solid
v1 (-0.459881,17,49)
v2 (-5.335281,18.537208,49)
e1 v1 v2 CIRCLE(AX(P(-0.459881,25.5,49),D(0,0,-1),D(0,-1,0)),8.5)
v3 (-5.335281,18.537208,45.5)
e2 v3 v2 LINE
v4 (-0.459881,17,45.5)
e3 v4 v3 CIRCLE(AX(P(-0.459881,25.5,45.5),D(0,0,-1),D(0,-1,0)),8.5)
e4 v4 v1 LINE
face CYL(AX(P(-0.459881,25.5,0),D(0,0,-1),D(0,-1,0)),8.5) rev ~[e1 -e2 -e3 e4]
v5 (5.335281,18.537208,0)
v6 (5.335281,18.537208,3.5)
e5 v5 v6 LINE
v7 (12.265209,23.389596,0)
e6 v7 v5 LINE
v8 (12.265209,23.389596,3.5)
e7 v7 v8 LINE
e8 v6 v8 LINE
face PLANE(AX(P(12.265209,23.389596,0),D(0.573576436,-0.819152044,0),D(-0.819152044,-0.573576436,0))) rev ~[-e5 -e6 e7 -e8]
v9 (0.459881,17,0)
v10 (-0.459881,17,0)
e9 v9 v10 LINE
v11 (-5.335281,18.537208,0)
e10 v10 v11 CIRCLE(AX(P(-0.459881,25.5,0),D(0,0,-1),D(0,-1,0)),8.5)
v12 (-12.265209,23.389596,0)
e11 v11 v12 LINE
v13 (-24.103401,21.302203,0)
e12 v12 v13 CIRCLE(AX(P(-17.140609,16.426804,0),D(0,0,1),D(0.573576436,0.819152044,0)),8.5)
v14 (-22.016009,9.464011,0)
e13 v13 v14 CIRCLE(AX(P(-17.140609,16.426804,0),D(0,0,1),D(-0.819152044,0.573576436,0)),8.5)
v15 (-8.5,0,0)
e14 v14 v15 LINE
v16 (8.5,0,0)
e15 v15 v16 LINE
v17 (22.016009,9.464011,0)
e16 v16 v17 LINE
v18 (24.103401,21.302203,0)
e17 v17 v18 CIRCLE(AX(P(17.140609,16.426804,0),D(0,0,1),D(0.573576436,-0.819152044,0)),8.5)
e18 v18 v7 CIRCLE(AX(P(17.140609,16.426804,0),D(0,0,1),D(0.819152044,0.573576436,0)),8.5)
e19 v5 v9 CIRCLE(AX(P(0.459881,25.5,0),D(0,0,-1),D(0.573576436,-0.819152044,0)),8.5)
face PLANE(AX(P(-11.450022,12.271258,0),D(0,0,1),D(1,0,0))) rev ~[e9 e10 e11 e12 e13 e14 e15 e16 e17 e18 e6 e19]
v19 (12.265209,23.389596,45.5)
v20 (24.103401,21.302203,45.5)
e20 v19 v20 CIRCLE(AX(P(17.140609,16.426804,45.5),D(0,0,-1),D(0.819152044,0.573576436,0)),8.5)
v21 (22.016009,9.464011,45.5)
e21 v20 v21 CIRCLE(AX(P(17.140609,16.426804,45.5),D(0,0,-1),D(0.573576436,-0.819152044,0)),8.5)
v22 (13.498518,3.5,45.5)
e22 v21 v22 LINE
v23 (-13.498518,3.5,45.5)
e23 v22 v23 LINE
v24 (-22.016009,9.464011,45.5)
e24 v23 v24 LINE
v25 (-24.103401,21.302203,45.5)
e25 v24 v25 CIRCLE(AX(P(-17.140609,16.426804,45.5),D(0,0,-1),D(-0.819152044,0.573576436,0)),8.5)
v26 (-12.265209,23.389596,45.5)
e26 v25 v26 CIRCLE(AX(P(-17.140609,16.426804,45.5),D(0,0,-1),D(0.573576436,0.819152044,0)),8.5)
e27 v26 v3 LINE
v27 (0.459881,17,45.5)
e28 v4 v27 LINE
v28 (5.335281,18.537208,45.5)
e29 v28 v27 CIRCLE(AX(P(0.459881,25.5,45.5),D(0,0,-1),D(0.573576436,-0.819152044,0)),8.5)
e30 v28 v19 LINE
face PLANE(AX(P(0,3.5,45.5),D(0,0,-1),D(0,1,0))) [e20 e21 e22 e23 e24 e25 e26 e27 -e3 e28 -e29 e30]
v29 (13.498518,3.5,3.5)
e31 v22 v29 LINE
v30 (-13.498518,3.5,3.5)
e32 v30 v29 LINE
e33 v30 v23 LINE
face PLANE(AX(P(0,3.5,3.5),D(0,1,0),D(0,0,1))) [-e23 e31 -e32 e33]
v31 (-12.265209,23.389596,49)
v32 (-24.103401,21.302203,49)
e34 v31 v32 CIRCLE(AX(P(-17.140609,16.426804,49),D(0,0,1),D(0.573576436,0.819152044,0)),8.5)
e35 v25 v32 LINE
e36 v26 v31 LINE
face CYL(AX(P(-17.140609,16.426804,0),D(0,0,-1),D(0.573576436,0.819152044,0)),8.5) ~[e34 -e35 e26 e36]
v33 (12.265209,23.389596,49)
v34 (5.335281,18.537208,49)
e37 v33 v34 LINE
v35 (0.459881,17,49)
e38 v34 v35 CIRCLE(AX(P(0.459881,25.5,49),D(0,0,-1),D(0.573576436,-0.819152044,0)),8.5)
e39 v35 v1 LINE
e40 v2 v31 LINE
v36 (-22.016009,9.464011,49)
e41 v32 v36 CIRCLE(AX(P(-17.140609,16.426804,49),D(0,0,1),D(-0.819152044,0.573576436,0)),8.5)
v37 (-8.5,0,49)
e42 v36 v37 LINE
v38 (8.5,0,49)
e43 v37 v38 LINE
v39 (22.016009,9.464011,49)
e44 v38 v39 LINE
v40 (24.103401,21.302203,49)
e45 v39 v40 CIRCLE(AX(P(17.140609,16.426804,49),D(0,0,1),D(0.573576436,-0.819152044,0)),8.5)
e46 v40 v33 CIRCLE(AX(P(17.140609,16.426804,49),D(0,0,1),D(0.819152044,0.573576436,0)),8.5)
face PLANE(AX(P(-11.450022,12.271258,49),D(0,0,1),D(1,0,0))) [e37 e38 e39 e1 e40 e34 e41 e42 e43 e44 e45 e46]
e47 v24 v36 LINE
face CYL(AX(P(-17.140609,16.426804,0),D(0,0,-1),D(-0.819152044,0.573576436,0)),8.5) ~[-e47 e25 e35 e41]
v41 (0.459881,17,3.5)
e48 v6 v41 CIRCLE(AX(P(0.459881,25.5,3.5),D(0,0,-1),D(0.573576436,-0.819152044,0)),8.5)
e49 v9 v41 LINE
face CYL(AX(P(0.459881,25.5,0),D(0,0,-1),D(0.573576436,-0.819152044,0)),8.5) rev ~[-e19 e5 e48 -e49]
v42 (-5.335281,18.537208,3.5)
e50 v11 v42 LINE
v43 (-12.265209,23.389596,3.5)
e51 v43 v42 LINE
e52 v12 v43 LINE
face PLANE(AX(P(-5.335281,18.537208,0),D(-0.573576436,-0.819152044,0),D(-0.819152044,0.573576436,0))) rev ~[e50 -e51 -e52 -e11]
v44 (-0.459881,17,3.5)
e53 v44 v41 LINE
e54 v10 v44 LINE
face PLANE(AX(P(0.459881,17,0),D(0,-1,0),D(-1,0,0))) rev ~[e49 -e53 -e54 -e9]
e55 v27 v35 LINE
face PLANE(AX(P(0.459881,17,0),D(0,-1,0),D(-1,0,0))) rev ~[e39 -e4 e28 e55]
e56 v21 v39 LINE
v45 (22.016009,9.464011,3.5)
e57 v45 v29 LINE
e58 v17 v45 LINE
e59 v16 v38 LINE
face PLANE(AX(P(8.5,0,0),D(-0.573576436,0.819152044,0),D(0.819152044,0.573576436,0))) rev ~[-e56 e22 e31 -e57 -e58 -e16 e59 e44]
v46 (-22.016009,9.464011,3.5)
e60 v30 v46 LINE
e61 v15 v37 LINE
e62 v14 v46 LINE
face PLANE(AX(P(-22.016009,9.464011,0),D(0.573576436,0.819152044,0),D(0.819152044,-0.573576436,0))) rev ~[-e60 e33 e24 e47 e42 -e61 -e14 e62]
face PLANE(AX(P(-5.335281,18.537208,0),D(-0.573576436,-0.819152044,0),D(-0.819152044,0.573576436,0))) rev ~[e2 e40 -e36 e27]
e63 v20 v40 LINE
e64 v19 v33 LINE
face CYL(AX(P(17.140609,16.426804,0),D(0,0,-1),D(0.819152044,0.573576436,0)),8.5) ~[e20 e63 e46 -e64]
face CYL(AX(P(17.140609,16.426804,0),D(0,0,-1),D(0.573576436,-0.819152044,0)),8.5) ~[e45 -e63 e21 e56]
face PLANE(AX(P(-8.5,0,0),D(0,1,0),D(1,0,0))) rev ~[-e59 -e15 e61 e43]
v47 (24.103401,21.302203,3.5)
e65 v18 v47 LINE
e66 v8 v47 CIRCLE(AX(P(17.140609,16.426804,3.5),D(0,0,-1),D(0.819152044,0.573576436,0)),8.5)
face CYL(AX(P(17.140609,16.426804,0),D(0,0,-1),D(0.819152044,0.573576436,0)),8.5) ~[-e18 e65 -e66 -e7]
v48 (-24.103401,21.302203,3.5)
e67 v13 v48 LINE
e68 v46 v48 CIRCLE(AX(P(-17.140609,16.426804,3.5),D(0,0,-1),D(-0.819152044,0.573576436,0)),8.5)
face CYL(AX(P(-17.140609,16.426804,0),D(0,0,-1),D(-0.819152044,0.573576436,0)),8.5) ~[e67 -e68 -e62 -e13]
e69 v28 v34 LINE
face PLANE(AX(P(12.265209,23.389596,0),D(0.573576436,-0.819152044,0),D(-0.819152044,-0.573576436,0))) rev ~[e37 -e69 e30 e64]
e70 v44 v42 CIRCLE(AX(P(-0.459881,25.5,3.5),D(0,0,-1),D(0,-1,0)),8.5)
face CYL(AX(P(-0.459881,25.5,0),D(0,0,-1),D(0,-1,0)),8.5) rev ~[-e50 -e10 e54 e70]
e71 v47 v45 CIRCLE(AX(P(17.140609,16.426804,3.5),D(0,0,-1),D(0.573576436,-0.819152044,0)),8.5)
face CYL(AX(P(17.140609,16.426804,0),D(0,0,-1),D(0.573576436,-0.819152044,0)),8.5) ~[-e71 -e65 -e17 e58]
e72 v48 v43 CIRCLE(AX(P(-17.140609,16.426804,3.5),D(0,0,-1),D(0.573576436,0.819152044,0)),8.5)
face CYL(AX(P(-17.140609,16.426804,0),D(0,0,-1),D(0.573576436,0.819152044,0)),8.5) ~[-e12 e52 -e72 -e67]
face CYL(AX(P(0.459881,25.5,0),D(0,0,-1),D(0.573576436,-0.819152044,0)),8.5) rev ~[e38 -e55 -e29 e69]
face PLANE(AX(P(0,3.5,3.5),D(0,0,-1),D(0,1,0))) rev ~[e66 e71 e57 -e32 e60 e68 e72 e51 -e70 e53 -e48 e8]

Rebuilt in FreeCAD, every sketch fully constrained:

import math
import FreeCAD as App
import Part
import Sketcher
Q = App.Units.Quantity

doc = App.newDocument("Part")
body = doc.addObject("PartDesign::Body", "Body")

sketch1 = body.newObject("Sketcher::SketchObject", "Sketch")
sketch1.AttachmentSupport = (doc.getObject("XY_Plane"), [""])
sketch1.MapMode = "FlatFace"
sketch1.addGeometry([
    Part.LineSegment(App.Vector(-8.5, 0, 0), App.Vector(8.5, 0, 0)),
    Part.LineSegment(App.Vector(8.5, 0, 0), App.Vector(22, 9.5, 0)),
    Part.ArcOfCircle(Part.Circle(App.Vector(17.1, 16.4, 0), App.Vector(0, 0, 1), 8.5), math.radians(-55), math.radians(35)),
    Part.ArcOfCircle(Part.Circle(App.Vector(17.1, 16.4, 0), App.Vector(0, 0, 1), 8.5), math.radians(35), math.radians(125)),
    Part.LineSegment(App.Vector(12.3, 23.4, 0), App.Vector(5.3, 18.5, 0)),
    Part.ArcOfCircle(Part.Circle(App.Vector(0.5, 25.5, 0), App.Vector(0, 0, 1), 8.5), math.radians(-90), math.radians(-55)),
    Part.LineSegment(App.Vector(0.5, 17, 0), App.Vector(-0.5, 17, 0)),
    Part.ArcOfCircle(Part.Circle(App.Vector(-0.5, 25.5, 0), App.Vector(0, 0, 1), 8.5), math.radians(-125), math.radians(-90)),
    Part.LineSegment(App.Vector(-5.3, 18.5, 0), App.Vector(-12.3, 23.4, 0)),
    Part.ArcOfCircle(Part.Circle(App.Vector(-17.1, 16.4, 0), App.Vector(0, 0, 1), 8.5), math.radians(55), math.radians(145)),
    Part.ArcOfCircle(Part.Circle(App.Vector(-17.1, 16.4, 0), App.Vector(0, 0, 1), 8.5), math.radians(145), math.radians(235)),
    Part.LineSegment(App.Vector(-22, 9.5, 0), App.Vector(-8.5, 0, 0)),
], False)
sketch1.addConstraint([
    Sketcher.Constraint("Coincident", 0, 2, 1, 1),
    Sketcher.Constraint("Tangent", 1, 2, 2, 1),
    Sketcher.Constraint("Tangent", 2, 2, 3, 1),
    Sketcher.Constraint("Tangent", 3, 2, 4, 1),
    Sketcher.Constraint("Tangent", 4, 2, 5, 2),
    Sketcher.Constraint("Tangent", 5, 1, 6, 1),
    Sketcher.Constraint("Tangent", 6, 2, 7, 2),
    Sketcher.Constraint("Tangent", 7, 1, 8, 1),
    Sketcher.Constraint("Tangent", 8, 2, 9, 1),
    Sketcher.Constraint("Tangent", 9, 2, 10, 1),
    Sketcher.Constraint("Tangent", 10, 2, 11, 1),
    Sketcher.Constraint("Coincident", 11, 2, 0, 1),
    Sketcher.Constraint("Horizontal", 0),
    Sketcher.Constraint("Horizontal", 6),
    Sketcher.Constraint("Equal", 2, 3),
    Sketcher.Constraint("Equal", 3, 5),
    Sketcher.Constraint("Equal", 5, 7),
    Sketcher.Constraint("Equal", 7, 9),
    Sketcher.Constraint("Equal", 9, 10),
    Sketcher.Constraint("Symmetric", 0, 2, 11, 2, -1, 1),
    Sketcher.Constraint("Symmetric", 2, 3, 9, 3, -2),
    Sketcher.Constraint("Parallel", 1, 4),
    Sketcher.Constraint("Parallel", 8, 11),
    Sketcher.Constraint("Horizontal", 2, 2, 9, 2),
    Sketcher.Constraint("Radius", 2, 8.5),
    Sketcher.Constraint("DistanceX", 0, 1, 0, 2, 17.0),
    Sketcher.Constraint("Angle", 1, Q("35 deg")),
    Sketcher.Constraint("DistanceY", -1, 1, 5, 1, 17.0),
    Sketcher.Constraint("Distance", 1, 16.5),
    Sketcher.Constraint("DistanceX", -1, 1, 2, 2, 24.103401),
])
pad1 = body.newObject("PartDesign::Pad", "Pad")
pad1.Profile = sketch1
pad1.Length = 49

sketch2 = body.newObject("Sketcher::SketchObject", "Sketch001")
sketch2.AttachmentSupport = (doc.getObject("YZ_Plane"), [""])
sketch2.MapMode = "FlatFace"
sketch2.addGeometry([
    Part.LineSegment(App.Vector(4, 46, 0), App.Vector(4, 4, 0)),
    Part.LineSegment(App.Vector(4, 4, 0), App.Vector(72, 4, 0)),
    Part.LineSegment(App.Vector(72, 4, 0), App.Vector(72, 46, 0)),
    Part.LineSegment(App.Vector(72, 46, 0), App.Vector(4, 46, 0)),
], False)
sketch2.addConstraint([
    Sketcher.Constraint("Coincident", 0, 2, 1, 1),
    Sketcher.Constraint("Coincident", 1, 2, 2, 1),
    Sketcher.Constraint("Coincident", 2, 2, 3, 1),
    Sketcher.Constraint("Coincident", 3, 2, 0, 1),
    Sketcher.Constraint("Vertical", 0),
    Sketcher.Constraint("Horizontal", 1),
    Sketcher.Constraint("Vertical", 2),
    Sketcher.Constraint("Horizontal", 3),
    Sketcher.Constraint("DistanceY", 0, 2, 0, 1, 42.0),
    Sketcher.Constraint("DistanceX", -1, 1, 0, 2, 3.5),
    Sketcher.Constraint("DistanceY", -1, 1, 0, 2, 3.5),
    Sketcher.Constraint("DistanceX", 1, 1, 1, 2, 68.483962),
])
pocket1 = body.newObject("PartDesign::Pocket", "Pocket")
pocket1.Profile = sketch2
pocket1.Length = 999
pocket1.Midplane = True

doc.recompute()
